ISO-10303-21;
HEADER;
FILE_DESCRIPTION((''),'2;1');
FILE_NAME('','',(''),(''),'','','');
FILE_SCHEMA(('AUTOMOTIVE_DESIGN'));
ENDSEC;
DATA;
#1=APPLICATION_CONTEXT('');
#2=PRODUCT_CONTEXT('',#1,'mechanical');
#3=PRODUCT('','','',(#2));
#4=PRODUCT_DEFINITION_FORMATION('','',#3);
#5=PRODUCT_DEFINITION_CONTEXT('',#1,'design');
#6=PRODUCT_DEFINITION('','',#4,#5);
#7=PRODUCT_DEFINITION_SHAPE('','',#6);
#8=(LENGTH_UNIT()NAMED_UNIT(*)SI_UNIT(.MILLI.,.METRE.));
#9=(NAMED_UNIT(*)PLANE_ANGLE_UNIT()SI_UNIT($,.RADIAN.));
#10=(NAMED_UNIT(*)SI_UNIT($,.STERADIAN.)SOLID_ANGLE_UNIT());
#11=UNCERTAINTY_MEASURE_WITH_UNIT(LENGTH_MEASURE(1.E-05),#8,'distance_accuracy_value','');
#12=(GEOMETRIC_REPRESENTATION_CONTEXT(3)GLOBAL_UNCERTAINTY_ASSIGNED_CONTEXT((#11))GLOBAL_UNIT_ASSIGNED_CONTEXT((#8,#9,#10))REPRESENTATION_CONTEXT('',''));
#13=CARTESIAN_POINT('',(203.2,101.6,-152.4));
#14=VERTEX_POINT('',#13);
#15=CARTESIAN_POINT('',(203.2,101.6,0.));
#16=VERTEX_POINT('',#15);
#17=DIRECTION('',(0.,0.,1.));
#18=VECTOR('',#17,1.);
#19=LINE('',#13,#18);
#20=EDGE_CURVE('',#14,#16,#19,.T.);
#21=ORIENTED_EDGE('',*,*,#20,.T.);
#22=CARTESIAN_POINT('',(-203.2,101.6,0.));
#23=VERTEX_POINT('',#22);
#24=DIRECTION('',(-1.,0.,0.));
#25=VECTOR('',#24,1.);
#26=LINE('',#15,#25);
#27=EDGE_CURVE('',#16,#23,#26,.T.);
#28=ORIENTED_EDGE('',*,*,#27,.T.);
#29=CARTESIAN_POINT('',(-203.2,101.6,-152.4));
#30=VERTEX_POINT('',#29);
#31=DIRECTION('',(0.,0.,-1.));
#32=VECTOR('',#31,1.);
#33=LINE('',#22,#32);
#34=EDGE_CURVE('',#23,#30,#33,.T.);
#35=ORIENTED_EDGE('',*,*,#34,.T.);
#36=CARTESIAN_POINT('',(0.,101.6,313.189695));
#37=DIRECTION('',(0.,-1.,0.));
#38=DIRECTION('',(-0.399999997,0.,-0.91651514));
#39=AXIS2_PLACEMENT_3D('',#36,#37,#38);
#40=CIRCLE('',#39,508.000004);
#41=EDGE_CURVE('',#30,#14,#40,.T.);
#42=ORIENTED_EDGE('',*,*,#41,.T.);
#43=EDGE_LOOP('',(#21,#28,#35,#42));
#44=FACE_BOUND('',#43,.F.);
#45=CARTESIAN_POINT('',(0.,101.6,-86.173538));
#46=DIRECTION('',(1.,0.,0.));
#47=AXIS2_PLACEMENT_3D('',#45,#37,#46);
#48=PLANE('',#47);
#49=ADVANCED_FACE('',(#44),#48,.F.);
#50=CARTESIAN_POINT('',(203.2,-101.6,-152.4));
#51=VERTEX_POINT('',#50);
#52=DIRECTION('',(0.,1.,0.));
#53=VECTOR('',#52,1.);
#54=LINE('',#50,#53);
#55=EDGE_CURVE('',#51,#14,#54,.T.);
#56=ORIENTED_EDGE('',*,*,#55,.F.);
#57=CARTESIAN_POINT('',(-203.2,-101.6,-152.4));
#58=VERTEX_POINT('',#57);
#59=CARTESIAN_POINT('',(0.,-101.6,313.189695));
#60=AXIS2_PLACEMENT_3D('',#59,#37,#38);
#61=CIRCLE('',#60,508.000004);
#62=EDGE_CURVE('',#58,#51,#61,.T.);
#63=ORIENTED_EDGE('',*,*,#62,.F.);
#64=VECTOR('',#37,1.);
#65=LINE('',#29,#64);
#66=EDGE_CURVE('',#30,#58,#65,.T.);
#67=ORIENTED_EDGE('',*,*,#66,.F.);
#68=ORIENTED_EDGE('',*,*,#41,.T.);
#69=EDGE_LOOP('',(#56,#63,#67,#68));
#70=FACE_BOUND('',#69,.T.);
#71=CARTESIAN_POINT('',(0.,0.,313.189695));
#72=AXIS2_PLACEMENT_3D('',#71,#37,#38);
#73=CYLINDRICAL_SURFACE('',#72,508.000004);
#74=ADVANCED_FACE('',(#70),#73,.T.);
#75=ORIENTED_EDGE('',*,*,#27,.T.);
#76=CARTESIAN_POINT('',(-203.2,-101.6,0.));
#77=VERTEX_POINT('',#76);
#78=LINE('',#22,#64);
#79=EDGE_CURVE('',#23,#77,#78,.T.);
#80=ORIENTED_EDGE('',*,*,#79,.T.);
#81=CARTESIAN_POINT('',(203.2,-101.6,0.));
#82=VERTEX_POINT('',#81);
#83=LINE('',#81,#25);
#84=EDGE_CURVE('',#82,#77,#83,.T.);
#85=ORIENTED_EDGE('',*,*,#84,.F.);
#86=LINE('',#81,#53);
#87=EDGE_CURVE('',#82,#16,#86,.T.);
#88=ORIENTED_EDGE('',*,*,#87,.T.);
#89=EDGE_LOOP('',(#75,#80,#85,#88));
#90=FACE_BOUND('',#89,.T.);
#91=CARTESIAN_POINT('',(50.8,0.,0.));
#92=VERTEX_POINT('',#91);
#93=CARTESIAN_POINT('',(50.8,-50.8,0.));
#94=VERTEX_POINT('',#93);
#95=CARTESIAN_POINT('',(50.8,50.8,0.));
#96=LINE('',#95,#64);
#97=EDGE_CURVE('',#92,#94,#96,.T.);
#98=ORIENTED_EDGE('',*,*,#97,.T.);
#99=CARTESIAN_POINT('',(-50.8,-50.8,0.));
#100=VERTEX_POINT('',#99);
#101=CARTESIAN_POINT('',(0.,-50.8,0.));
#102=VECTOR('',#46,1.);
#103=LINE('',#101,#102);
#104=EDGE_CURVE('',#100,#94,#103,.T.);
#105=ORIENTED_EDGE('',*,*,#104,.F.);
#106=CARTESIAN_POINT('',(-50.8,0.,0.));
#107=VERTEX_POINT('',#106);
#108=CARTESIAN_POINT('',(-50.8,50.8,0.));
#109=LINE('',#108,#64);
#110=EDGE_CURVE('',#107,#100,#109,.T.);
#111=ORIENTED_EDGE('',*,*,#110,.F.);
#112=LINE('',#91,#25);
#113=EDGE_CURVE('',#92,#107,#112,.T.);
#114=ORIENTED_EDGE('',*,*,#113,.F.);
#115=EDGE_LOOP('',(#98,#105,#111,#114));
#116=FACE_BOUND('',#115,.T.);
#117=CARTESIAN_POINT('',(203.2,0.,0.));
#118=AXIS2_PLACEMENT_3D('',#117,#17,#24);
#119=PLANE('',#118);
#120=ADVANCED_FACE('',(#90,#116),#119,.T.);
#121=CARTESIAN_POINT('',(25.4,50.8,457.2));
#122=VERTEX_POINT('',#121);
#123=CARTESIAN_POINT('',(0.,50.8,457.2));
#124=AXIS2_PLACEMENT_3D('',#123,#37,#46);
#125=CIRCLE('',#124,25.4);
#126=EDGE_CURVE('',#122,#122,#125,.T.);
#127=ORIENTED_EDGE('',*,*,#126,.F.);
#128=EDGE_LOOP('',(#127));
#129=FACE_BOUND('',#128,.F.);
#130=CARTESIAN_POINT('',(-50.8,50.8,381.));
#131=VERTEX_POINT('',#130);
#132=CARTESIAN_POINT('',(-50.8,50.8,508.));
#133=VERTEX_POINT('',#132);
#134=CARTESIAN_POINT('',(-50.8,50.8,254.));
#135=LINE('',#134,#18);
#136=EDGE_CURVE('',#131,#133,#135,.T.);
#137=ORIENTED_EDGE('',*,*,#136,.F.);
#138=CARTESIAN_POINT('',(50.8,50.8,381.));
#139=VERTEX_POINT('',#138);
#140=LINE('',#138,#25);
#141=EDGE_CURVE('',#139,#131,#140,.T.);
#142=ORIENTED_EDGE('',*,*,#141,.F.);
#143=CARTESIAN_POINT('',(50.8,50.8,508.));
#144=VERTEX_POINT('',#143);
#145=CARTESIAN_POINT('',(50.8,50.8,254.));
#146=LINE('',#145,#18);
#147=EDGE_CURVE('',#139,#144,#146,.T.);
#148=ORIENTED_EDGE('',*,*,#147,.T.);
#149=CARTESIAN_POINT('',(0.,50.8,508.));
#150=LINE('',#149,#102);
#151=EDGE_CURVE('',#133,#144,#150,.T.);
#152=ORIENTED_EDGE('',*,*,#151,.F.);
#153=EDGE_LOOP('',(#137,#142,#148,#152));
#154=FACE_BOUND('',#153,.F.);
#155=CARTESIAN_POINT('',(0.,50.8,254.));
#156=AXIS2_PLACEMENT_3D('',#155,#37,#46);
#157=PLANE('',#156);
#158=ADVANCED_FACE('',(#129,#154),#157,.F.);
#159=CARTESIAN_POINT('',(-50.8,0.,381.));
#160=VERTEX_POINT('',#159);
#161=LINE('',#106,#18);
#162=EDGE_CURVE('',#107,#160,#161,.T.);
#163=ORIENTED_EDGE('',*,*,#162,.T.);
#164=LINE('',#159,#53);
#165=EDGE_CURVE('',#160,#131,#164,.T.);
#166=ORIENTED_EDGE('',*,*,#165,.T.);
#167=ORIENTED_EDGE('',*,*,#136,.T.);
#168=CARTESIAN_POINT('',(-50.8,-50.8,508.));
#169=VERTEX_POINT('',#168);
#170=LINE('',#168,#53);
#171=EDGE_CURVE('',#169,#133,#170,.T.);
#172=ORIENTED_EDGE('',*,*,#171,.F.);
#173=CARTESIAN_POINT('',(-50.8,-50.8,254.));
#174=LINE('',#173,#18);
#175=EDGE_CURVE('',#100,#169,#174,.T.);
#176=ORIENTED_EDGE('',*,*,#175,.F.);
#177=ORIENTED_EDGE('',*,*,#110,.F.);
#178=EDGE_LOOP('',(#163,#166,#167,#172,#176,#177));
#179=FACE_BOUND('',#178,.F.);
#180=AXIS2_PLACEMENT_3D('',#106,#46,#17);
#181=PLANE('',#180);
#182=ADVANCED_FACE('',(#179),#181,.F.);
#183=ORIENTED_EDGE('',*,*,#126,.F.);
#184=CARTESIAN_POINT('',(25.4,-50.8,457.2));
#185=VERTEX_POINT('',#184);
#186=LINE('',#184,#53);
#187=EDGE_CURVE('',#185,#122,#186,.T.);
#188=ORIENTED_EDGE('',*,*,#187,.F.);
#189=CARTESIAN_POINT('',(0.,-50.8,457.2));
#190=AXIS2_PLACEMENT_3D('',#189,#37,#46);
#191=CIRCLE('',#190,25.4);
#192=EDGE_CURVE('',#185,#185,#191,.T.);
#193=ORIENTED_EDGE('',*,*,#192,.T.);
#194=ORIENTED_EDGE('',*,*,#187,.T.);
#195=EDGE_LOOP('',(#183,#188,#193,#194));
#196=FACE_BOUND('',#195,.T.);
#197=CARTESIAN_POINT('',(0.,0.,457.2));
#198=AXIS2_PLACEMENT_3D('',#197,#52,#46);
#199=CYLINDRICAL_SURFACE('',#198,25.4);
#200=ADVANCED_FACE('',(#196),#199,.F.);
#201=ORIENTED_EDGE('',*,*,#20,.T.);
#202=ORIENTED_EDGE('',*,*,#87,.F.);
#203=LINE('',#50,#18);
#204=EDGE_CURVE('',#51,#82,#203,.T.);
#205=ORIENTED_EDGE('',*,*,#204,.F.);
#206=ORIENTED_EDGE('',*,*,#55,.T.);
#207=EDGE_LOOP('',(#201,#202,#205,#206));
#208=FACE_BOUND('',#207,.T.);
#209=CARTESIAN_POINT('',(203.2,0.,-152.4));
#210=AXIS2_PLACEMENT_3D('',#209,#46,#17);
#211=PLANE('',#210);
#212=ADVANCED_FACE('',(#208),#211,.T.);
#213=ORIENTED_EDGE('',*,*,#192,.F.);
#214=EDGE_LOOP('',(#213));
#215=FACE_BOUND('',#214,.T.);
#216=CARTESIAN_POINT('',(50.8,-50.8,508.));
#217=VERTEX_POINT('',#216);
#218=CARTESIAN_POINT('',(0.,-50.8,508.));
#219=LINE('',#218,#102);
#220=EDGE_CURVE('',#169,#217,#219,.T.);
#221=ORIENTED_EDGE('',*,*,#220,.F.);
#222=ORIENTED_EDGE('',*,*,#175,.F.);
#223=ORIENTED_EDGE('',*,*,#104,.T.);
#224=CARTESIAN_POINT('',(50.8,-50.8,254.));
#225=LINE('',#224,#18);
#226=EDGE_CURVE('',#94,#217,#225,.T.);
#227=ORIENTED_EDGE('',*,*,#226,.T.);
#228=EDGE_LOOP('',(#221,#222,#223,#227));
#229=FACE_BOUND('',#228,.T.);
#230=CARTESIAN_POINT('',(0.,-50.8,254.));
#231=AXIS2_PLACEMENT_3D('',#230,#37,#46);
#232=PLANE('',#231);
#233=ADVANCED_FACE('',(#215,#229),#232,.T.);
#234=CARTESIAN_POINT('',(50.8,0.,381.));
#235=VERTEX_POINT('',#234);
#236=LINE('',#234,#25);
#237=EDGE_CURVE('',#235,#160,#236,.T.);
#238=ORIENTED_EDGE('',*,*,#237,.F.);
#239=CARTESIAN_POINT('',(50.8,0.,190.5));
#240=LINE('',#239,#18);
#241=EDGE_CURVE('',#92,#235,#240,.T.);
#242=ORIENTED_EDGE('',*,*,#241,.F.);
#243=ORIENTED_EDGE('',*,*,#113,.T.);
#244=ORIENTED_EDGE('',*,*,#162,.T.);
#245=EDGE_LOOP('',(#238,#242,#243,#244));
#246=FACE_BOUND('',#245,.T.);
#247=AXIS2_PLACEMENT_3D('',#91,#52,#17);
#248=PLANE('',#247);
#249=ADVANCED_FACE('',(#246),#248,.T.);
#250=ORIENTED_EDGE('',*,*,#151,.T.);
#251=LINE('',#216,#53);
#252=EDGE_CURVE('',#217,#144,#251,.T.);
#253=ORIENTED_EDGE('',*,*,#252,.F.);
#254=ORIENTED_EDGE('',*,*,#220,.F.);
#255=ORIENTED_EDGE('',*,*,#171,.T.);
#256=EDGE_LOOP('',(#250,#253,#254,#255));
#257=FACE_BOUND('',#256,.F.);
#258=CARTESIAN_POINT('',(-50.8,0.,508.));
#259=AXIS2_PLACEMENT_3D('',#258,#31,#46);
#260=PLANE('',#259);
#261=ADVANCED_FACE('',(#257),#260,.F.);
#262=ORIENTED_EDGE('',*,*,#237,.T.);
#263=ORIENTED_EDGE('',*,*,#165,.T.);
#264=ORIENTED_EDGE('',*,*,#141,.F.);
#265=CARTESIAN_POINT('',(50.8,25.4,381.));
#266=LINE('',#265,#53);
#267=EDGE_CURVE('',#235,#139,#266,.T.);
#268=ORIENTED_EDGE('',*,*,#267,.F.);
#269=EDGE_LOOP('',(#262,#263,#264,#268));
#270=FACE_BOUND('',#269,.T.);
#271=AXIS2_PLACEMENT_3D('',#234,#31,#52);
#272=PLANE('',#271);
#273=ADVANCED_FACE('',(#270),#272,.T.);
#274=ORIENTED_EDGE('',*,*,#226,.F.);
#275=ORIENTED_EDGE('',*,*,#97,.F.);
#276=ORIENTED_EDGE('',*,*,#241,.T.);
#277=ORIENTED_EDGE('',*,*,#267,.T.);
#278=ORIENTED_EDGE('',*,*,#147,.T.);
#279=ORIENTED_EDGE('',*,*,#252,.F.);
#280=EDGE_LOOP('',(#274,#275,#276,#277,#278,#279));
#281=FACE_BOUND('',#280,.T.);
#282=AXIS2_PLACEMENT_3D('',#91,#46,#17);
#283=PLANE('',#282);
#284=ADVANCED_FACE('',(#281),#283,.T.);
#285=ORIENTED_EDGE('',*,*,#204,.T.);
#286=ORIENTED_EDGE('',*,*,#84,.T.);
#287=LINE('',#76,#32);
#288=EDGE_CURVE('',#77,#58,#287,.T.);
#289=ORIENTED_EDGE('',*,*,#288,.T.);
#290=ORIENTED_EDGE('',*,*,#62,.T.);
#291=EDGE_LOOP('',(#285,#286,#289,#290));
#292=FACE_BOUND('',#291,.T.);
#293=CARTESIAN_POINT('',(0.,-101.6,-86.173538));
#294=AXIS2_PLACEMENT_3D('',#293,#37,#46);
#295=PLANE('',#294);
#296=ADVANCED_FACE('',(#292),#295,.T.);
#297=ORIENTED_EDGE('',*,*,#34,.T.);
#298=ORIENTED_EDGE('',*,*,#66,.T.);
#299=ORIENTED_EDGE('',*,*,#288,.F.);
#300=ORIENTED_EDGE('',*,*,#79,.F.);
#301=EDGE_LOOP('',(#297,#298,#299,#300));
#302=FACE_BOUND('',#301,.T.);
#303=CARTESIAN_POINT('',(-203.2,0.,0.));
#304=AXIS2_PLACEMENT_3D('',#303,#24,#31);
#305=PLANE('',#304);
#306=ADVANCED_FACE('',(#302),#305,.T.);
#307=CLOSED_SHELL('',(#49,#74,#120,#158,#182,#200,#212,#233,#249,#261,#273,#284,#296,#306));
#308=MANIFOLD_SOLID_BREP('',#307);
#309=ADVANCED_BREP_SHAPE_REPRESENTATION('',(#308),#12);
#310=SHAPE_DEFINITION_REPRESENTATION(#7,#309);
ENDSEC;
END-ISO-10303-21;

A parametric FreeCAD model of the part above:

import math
import FreeCAD as App
import Part
import Sketcher

V = App.Vector
Q = App.Units.Quantity

doc = App.newDocument("Part")
body = doc.addObject("PartDesign::Body", "Body")

# Sketch on XZ plane
sketch1 = doc.addObject("Sketcher::SketchObject", "Sketch")
body.addObject(sketch1)
sketch1.AttachmentSupport = (doc.XZ_Plane, [""])
sketch1.MapMode = "FlatFace"
sketch1.addGeometry(Part.LineSegment(V(-51, 508, 0), V(-51, 0, 0)), False)
sketch1.addGeometry(Part.LineSegment(V(-51, 0, 0), V(51, 0, 0)), False)
sketch1.addGeometry(Part.LineSegment(V(51, 0, 0), V(51, 508, 0)), False)
sketch1.addGeometry(Part.LineSegment(V(51, 508, 0), V(-51, 508, 0)), False)
sketch1.addGeometry(Part.Circle(V(0, 457, 0), V(0, 0, 1), 25), False)
sketch1.addConstraint(Sketcher.Constraint("Coincident", 0, 2, 1, 1))
sketch1.addConstraint(Sketcher.Constraint("Coincident", 1, 2, 2, 1))
sketch1.addConstraint(Sketcher.Constraint("Coincident", 2, 2, 3, 1))
sketch1.addConstraint(Sketcher.Constraint("Coincident", 3, 2, 0, 1))
sketch1.addConstraint(Sketcher.Constraint("Vertical", 0))
sketch1.addConstraint(Sketcher.Constraint("Horizontal", 1))
sketch1.addConstraint(Sketcher.Constraint("Vertical", 2))
sketch1.addConstraint(Sketcher.Constraint("Horizontal", 3))
sketch1.addConstraint(Sketcher.Constraint("Symmetric", 0, 2, 1, 2, -1, 1))
sketch1.addConstraint(Sketcher.Constraint("PointOnObject", 4, 3, -2))
sketch1.addConstraint(Sketcher.Constraint("Diameter", 4, Q("2 in")))
sketch1.addConstraint(Sketcher.Constraint("DistanceX", 1, 1, 1, 2, Q("4 in")))
sketch1.addConstraint(Sketcher.Constraint("DistanceY", 0, 2, 0, 1, Q("20 in")))
sketch1.addConstraint(Sketcher.Constraint("DistanceY", -1, 1, 4, 3, Q("18 in")))
pad1 = doc.addObject("PartDesign::Pad", "Pad")
body.addObject(pad1)
pad1.Profile = sketch1
pad1.Length = Q("4 in")
pad1.Midplane = True

# Sketch on XZ plane
sketch2 = doc.addObject("Sketcher::SketchObject", "Sketch001")
body.addObject(sketch2)
sketch2.AttachmentSupport = (doc.XZ_Plane, [""])
sketch2.MapMode = "FlatFace"
sketch2.addGeometry(Part.LineSegment(V(203, 0, 0), V(-203, 0, 0)), False)
sketch2.addGeometry(Part.LineSegment(V(-203, 0, 0), V(-203, -152, 0)), False)
sketch2.addGeometry(Part.ArcOfCircle(Part.Circle(V(0, 313, 0), V(0, 0, 1), 508), math.radians(-114), math.radians(-66)), False)
sketch2.addGeometry(Part.LineSegment(V(203, -152, 0), V(203, 0, 0)), False)
sketch2.addConstraint(Sketcher.Constraint("Coincident", 0, 2, 1, 1))
sketch2.addConstraint(Sketcher.Constraint("Coincident", 1, 2, 2, 1))
sketch2.addConstraint(Sketcher.Constraint("Coincident", 2, 2, 3, 1))
sketch2.addConstraint(Sketcher.Constraint("Coincident", 3, 2, 0, 1))
sketch2.addConstraint(Sketcher.Constraint("Horizontal", 0))
sketch2.addConstraint(Sketcher.Constraint("Vertical", 1))
sketch2.addConstraint(Sketcher.Constraint("Vertical", 3))
sketch2.addConstraint(Sketcher.Constraint("Symmetric", 0, 2, 3, 2, -1, 1))
sketch2.addConstraint(Sketcher.Constraint("PointOnObject", 2, 3, -2))
sketch2.addConstraint(Sketcher.Constraint("Radius", 2, Q("20.0000002 in")))
sketch2.addConstraint(Sketcher.Constraint("DistanceX", 0, 2, 0, 1, Q("16 in")))
sketch2.addConstraint(Sketcher.Constraint("DistanceY", 1, 2, 1, 1, Q("6 in")))
pad2 = doc.addObject("PartDesign::Pad", "Pad001")
body.addObject(pad2)
pad2.Profile = sketch2
pad2.Length = Q("8 in")
pad2.Midplane = True

# Sketch on YZ plane
sketch3 = doc.addObject("Sketcher::SketchObject", "Sketch002")
body.addObject(sketch3)
sketch3.AttachmentSupport = (doc.YZ_Plane, [""])
sketch3.MapMode = "FlatFace"
sketch3.AttachmentOffset = App.Placement(V(0, 0, 2 * 25.4), App.Rotation())
sketch3.addGeometry(Part.LineSegment(V(0, 381, 0), V(0, 0, 0)), False)
sketch3.addGeometry(Part.LineSegment(V(0, 0, 0), V(51, 0, 0)), False)
sketch3.addGeometry(Part.LineSegment(V(51, 0, 0), V(51, 381, 0)), False)
sketch3.addGeometry(Part.LineSegment(V(51, 381, 0), V(0, 381, 0)), False)
sketch3.addConstraint(Sketcher.Constraint("Coincident", 0, 2, 1, 1))
sketch3.addConstraint(Sketcher.Constraint("Coincident", 1, 2, 2, 1))
sketch3.addConstraint(Sketcher.Constraint("Coincident", 2, 2, 3, 1))
sketch3.addConstraint(Sketcher.Constraint("Coincident", 3, 2, 0, 1))
sketch3.addConstraint(Sketcher.Constraint("Vertical", 0))
sketch3.addConstraint(Sketcher.Constraint("Horizontal", 1))
sketch3.addConstraint(Sketcher.Constraint("Vertical", 2))
sketch3.addConstraint(Sketcher.Constraint("Horizontal", 3))
sketch3.addConstraint(Sketcher.Constraint("Coincident", 0, 2, -1, 1))
sketch3.addConstraint(Sketcher.Constraint("DistanceX", 1, 1, 1, 2, Q("2 in")))
sketch3.addConstraint(Sketcher.Constraint("DistanceY", 0, 2, 0, 1, Q("15 in")))
pocket1 = doc.addObject("PartDesign::Pocket", "Pocket")
body.addObject(pocket1)
pocket1.Profile = sketch3
pocket1.Type = "ThroughAll"

doc.recompute()
